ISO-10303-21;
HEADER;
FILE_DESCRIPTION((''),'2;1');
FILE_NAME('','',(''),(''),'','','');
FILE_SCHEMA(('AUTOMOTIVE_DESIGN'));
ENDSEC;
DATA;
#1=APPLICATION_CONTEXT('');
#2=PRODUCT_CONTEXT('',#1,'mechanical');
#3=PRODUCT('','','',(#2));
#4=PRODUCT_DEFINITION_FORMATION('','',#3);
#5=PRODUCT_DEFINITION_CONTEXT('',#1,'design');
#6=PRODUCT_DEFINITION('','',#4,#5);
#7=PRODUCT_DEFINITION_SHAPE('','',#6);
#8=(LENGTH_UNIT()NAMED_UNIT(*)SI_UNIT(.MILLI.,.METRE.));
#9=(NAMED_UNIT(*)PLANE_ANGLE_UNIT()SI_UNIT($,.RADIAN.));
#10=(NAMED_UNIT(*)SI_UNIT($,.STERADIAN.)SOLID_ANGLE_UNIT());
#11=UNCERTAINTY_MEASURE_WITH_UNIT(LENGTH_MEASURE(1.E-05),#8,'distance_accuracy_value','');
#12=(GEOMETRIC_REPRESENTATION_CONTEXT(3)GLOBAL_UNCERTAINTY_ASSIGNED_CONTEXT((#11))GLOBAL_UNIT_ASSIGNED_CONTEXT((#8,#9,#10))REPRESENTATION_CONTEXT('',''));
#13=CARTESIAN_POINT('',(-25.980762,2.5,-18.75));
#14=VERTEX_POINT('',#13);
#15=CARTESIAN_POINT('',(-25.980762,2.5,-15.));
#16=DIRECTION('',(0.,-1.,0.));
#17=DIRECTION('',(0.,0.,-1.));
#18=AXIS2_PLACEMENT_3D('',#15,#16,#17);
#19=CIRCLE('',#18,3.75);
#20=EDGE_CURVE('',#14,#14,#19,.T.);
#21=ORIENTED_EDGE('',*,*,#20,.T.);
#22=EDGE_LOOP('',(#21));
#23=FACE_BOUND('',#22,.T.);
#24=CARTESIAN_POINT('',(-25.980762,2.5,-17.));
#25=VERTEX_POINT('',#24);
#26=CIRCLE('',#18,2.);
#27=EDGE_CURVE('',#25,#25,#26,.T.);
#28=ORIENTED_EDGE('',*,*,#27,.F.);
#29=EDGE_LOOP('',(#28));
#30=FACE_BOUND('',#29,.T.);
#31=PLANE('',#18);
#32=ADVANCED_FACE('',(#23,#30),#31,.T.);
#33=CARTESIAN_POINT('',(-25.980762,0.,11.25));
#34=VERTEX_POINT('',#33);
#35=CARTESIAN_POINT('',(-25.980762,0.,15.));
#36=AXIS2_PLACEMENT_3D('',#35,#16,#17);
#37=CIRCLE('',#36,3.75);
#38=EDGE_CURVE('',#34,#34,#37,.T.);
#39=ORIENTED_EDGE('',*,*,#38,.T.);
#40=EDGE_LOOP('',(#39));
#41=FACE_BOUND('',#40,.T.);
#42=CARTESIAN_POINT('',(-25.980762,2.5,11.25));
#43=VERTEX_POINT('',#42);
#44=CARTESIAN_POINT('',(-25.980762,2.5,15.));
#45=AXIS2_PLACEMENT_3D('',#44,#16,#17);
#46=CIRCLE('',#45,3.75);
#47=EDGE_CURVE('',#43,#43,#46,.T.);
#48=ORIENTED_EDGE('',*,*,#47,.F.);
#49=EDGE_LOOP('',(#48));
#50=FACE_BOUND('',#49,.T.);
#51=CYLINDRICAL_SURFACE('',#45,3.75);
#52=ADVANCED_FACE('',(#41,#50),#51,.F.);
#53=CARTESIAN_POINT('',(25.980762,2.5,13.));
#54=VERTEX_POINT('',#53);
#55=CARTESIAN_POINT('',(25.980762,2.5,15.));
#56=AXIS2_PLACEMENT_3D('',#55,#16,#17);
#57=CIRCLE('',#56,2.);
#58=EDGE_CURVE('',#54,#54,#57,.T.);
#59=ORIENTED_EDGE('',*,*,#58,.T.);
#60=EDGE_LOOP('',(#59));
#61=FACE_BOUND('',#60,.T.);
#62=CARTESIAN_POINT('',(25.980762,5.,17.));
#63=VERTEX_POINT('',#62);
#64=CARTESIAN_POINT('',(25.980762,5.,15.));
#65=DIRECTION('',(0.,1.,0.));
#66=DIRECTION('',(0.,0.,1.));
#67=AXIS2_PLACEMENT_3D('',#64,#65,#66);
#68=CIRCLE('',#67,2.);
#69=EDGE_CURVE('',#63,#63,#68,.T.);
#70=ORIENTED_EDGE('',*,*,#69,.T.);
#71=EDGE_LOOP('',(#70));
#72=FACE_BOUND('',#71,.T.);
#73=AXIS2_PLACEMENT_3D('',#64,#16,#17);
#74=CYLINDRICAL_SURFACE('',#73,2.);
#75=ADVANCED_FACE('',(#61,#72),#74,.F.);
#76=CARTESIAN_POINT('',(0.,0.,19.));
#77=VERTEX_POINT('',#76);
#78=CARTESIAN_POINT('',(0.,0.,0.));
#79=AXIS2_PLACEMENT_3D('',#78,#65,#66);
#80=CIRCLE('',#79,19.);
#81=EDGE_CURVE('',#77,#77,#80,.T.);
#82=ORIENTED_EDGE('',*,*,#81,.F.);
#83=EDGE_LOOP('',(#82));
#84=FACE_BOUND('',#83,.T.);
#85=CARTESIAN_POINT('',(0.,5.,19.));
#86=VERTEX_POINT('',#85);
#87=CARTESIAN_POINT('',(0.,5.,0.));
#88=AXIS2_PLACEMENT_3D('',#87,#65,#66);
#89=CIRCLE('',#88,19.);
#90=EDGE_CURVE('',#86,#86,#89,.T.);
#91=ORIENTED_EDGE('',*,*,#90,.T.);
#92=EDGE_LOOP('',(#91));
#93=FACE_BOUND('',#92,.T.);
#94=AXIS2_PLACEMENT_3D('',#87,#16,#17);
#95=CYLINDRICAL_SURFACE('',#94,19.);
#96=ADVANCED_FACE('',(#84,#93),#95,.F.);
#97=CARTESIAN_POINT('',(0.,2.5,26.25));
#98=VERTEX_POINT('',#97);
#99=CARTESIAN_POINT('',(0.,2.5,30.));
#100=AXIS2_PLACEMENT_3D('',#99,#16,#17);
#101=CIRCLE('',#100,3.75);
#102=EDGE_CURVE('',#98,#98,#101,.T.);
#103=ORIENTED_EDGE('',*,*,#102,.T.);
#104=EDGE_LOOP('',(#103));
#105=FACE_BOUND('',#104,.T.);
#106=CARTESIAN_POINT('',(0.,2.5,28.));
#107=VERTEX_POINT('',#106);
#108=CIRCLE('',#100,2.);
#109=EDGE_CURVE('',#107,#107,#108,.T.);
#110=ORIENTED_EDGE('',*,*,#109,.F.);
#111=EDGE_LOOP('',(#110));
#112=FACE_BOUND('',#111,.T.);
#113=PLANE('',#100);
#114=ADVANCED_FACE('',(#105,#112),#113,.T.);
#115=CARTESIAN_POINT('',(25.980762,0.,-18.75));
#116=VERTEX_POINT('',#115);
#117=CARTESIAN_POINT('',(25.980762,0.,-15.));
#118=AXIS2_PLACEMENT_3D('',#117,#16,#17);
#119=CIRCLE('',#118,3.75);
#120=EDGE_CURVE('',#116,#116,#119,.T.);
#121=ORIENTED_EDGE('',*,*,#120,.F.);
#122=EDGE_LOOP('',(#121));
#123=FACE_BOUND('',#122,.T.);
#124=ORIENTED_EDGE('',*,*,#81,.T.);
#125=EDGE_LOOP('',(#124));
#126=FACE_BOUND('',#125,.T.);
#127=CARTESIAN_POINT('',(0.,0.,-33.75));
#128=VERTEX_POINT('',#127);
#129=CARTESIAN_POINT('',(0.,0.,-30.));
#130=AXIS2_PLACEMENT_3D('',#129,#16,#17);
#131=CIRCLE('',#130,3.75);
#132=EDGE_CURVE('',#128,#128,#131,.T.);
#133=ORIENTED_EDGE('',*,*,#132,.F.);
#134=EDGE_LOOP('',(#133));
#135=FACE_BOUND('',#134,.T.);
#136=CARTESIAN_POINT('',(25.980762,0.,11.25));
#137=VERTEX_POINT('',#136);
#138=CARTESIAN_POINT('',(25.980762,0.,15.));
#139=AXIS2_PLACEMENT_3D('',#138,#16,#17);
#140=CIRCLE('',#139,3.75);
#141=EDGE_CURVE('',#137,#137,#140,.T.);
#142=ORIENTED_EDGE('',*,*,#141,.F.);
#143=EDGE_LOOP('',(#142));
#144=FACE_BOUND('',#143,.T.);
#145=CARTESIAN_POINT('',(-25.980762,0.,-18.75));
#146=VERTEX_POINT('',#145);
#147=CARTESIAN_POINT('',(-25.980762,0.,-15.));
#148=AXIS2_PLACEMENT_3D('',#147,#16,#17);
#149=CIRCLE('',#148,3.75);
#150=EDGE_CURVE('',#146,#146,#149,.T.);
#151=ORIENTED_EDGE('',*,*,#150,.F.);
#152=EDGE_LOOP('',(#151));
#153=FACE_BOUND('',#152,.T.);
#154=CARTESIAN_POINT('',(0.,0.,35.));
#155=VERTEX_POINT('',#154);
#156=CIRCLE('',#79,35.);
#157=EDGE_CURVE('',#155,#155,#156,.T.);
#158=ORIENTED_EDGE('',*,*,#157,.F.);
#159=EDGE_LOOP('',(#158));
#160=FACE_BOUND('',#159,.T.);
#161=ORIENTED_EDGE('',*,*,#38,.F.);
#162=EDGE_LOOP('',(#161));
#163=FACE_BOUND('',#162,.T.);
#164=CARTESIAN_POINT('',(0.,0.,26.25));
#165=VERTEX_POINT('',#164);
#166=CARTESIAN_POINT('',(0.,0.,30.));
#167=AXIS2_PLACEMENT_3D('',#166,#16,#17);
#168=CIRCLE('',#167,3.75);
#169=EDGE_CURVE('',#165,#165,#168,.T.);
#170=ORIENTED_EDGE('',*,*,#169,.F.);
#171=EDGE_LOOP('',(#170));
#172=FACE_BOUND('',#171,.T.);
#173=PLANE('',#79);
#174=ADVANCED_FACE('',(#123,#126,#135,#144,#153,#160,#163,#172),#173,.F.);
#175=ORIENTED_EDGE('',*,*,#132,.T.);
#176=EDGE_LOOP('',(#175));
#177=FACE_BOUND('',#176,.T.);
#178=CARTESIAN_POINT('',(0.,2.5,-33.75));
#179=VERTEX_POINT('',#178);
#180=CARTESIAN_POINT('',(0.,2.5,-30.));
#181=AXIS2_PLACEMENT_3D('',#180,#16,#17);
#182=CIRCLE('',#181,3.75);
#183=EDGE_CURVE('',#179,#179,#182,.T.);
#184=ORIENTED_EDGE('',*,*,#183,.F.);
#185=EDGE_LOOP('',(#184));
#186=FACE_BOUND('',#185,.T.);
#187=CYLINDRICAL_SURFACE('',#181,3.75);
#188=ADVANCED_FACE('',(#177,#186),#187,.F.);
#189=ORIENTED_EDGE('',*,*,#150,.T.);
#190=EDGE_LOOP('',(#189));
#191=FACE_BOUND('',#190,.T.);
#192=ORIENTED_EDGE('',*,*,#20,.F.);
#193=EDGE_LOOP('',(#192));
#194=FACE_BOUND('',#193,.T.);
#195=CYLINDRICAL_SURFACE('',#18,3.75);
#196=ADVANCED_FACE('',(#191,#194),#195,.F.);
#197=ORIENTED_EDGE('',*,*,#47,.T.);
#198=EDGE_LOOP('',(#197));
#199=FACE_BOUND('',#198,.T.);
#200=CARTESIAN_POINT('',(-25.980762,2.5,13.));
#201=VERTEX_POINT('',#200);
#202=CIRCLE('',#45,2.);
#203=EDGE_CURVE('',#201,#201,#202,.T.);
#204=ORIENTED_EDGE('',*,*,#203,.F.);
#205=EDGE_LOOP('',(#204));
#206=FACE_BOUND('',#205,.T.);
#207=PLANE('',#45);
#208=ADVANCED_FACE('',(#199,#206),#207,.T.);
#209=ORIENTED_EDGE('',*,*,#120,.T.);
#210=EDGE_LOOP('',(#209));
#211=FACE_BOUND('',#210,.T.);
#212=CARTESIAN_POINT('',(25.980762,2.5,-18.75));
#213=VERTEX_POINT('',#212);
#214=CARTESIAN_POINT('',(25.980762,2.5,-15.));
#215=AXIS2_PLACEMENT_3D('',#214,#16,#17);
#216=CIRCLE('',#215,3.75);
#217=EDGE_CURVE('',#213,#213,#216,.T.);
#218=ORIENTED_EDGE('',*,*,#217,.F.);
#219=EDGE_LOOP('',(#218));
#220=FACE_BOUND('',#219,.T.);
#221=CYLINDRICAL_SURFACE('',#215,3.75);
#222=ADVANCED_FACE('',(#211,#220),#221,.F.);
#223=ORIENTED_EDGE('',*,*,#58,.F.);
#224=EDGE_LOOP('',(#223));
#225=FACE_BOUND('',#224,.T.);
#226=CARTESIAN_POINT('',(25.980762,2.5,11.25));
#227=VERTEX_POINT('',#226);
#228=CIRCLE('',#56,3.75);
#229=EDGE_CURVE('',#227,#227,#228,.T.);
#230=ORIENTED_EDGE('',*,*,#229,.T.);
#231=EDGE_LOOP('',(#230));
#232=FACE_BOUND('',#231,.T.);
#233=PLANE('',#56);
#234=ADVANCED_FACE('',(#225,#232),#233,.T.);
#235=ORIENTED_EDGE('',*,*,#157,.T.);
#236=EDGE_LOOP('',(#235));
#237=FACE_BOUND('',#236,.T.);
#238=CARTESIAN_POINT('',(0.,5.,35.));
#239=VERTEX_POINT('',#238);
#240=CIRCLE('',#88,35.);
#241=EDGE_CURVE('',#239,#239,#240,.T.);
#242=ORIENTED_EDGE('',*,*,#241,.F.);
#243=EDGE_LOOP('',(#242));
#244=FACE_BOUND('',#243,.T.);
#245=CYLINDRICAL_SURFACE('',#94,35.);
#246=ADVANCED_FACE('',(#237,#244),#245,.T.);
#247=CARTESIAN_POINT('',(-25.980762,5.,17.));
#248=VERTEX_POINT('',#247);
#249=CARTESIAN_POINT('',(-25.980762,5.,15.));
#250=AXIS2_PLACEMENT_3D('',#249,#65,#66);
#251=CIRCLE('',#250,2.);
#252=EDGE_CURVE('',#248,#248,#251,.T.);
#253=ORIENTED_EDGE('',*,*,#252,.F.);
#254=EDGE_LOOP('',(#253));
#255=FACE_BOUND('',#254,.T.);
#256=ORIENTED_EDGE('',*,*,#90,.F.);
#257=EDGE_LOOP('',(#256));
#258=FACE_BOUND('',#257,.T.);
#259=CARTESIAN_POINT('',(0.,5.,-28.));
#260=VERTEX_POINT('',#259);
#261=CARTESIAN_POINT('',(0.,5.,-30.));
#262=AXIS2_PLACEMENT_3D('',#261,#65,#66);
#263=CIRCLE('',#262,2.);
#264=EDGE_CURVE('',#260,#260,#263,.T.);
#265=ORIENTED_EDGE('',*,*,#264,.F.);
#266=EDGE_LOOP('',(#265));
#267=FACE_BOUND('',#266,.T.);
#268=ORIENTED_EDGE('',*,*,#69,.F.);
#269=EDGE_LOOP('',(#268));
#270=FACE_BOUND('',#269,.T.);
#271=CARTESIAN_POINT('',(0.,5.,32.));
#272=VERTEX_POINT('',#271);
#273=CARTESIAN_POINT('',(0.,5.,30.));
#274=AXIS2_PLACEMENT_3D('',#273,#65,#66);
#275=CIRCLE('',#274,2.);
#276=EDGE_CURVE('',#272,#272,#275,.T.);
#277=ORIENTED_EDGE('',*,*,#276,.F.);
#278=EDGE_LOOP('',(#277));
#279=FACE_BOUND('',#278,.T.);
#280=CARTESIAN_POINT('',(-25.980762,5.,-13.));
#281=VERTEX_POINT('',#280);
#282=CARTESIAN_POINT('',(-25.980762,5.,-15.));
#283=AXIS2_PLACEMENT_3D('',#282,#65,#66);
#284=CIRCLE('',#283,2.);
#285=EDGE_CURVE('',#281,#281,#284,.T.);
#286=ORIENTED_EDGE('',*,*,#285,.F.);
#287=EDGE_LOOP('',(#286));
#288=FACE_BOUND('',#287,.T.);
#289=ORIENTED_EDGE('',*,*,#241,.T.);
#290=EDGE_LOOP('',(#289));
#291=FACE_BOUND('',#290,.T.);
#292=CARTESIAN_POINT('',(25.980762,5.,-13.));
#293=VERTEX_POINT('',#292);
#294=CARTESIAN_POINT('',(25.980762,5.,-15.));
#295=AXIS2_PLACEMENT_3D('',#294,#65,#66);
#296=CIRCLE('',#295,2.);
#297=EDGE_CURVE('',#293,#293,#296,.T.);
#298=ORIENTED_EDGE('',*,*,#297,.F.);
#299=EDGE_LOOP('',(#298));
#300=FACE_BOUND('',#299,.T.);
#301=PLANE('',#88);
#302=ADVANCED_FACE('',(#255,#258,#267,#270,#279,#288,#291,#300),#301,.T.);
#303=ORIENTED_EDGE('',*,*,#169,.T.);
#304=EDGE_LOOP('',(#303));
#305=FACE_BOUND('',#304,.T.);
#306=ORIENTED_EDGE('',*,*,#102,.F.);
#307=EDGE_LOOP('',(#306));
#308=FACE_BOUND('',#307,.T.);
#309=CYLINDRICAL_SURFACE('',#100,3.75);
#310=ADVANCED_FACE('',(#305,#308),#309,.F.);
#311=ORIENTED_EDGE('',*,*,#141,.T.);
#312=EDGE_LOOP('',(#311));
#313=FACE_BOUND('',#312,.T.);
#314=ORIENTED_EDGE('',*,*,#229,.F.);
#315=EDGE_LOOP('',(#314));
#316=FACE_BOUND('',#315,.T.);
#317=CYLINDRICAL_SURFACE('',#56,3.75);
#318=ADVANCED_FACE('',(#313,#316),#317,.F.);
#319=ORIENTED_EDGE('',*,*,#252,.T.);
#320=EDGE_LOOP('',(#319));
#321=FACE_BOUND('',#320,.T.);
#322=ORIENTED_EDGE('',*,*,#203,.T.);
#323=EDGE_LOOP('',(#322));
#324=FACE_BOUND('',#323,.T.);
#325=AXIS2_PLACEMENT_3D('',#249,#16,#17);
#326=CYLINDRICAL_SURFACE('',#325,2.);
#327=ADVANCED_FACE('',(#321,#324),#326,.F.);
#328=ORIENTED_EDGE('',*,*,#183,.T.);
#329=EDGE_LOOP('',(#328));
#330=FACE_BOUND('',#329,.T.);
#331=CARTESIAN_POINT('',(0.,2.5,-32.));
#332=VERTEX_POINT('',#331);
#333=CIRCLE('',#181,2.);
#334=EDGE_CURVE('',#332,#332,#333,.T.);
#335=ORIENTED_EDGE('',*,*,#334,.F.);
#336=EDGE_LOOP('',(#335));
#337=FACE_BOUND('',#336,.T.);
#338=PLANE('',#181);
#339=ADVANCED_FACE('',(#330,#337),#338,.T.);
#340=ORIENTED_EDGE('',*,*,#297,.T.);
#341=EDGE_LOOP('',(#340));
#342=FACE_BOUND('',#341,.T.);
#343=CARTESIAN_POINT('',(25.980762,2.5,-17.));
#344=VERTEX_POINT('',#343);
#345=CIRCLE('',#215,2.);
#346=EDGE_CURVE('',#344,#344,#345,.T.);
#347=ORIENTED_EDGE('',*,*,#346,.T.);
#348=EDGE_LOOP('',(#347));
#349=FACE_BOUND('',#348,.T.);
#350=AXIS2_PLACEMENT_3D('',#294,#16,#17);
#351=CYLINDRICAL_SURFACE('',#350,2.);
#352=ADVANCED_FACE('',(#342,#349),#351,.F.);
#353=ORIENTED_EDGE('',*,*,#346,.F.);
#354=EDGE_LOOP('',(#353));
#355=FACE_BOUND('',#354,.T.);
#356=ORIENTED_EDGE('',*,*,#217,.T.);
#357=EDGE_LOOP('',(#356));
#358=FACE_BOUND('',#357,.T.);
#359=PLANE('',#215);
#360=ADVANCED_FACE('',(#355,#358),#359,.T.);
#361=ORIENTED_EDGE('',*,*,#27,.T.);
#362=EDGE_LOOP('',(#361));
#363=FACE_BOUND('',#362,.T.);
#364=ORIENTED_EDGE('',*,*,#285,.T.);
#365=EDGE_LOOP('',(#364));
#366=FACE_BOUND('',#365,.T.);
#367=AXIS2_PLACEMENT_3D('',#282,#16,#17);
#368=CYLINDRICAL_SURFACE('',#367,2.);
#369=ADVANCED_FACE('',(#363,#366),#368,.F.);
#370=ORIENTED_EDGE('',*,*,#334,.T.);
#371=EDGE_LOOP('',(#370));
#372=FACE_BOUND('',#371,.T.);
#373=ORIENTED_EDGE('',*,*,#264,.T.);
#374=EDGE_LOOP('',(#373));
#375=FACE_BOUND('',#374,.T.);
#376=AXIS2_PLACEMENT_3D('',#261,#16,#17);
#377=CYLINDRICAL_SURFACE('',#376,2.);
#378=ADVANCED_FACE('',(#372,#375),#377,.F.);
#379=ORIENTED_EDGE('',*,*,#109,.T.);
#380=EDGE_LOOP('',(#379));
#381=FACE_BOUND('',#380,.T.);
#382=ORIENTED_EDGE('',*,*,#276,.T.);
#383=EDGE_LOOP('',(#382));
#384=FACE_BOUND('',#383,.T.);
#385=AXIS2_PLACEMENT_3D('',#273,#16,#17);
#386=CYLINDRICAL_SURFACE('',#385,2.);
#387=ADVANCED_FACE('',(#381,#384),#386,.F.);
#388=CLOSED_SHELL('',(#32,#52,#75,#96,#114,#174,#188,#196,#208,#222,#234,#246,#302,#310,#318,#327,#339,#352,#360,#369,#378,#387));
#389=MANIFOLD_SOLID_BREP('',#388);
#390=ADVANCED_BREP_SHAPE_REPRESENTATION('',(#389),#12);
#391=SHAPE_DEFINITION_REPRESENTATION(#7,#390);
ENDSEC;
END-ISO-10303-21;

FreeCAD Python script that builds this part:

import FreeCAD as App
import Part
import Sketcher

V = App.Vector

doc = App.newDocument("Part")
body = doc.addObject("PartDesign::Body", "Body")

sketch1 = body.newObject("Sketcher::SketchObject", "Sketch")
sketch1.AttachmentSupport = (doc.getObject("XZ_Plane"), [""])
sketch1.MapMode = "FlatFace"
sketch1.addGeometry([
    Part.Circle(V(0, 0, 0), V(0, 0, 1), 35),
    Part.Circle(V(-26, -15, 0), V(0, 0, 1), 2),
    Part.Circle(V(0, -30, 0), V(0, 0, 1), 2),
    Part.Circle(V(-26, 15, 0), V(0, 0, 1), 2),
    Part.Circle(V(0, 0, 0), V(0, 0, 1), 19),
    Part.Circle(V(26, -15, 0), V(0, 0, 1), 2),
    Part.Circle(V(0, 30, 0), V(0, 0, 1), 2),
    Part.Circle(V(26, 15, 0), V(0, 0, 1), 2),
], False)
sketch1.addConstraint([
    Sketcher.Constraint("Coincident", 0, 3, -1, 1),
    Sketcher.Constraint("Coincident", 4, 3, -1, 1),
    Sketcher.Constraint("Equal", 1, 2),
    Sketcher.Constraint("Equal", 2, 3),
    Sketcher.Constraint("Equal", 3, 5),
    Sketcher.Constraint("Equal", 5, 6),
    Sketcher.Constraint("Equal", 6, 7),
    Sketcher.Constraint("Symmetric", 3, 3, 5, 3, -1, 1),
    Sketcher.Constraint("Symmetric", 2, 3, 6, 3, -1, 1),
    Sketcher.Constraint("Symmetric", 1, 3, 7, 3, -1, 1),
    Sketcher.Constraint("Symmetric", 1, 3, 5, 3, -2),
    Sketcher.Constraint("PointOnObject", 2, 3, -2),
    Sketcher.Constraint("Diameter", 0, 70.0),
    Sketcher.Constraint("Diameter", 1, 4.0),
    Sketcher.Constraint("Diameter", 4, 38.0),
    Sketcher.Constraint("DistanceY", 1, 3, -1, 1, 15.0),
    Sketcher.Constraint("DistanceY", 2, 3, -1, 1, 30.0),
    Sketcher.Constraint("DistanceX", 1, 3, -1, 1, 25.980762),
])
pad1 = body.newObject("PartDesign::Pad", "Pad")
pad1.Profile = sketch1
pad1.Length = 5
pad1.Reversed = True

sketch2 = body.newObject("Sketcher::SketchObject", "Sketch001")
sketch2.AttachmentSupport = (doc.getObject("XZ_Plane"), [""])
sketch2.MapMode = "FlatFace"
sketch2.addGeometry([
    Part.Circle(V(0, 30, 0), V(0, 0, 1), 3.8),
    Part.Circle(V(26, 15, 0), V(0, 0, 1), 3.8),
    Part.Circle(V(26, -15, 0), V(0, 0, 1), 3.8),
    Part.Circle(V(0, -30, 0), V(0, 0, 1), 3.8),
    Part.Circle(V(-26, -15, 0), V(0, 0, 1), 3.8),
    Part.Circle(V(-26, 15, 0), V(0, 0, 1), 3.8),
], False)
sketch2.addConstraint([
    Sketcher.Constraint("Equal", 0, 1),
    Sketcher.Constraint("Equal", 1, 2),
    Sketcher.Constraint("Equal", 2, 3),
    Sketcher.Constraint("Equal", 3, 4),
    Sketcher.Constraint("Equal", 4, 5),
    Sketcher.Constraint("Symmetric", 0, 3, 3, 3, -1, 1),
    Sketcher.Constraint("Symmetric", 1, 3, 4, 3, -1, 1),
    Sketcher.Constraint("Symmetric", 2, 3, 5, 3, -1, 1),
    Sketcher.Constraint("Symmetric", 2, 3, 4, 3, -2),
    Sketcher.Constraint("PointOnObject", 0, 3, -2),
    Sketcher.Constraint("Diameter", 0, 7.5),
    Sketcher.Constraint("DistanceY", -1, 1, 0, 3, 30.0),
    Sketcher.Constraint("DistanceY", -1, 1, 1, 3, 15.0),
    Sketcher.Constraint("DistanceX", -1, 1, 1, 3, 25.980762),
])
pocket1 = body.newObject("PartDesign::Pocket", "Pocket")
pocket1.Profile = sketch2
pocket1.Length = 2.5

doc.recompute()
